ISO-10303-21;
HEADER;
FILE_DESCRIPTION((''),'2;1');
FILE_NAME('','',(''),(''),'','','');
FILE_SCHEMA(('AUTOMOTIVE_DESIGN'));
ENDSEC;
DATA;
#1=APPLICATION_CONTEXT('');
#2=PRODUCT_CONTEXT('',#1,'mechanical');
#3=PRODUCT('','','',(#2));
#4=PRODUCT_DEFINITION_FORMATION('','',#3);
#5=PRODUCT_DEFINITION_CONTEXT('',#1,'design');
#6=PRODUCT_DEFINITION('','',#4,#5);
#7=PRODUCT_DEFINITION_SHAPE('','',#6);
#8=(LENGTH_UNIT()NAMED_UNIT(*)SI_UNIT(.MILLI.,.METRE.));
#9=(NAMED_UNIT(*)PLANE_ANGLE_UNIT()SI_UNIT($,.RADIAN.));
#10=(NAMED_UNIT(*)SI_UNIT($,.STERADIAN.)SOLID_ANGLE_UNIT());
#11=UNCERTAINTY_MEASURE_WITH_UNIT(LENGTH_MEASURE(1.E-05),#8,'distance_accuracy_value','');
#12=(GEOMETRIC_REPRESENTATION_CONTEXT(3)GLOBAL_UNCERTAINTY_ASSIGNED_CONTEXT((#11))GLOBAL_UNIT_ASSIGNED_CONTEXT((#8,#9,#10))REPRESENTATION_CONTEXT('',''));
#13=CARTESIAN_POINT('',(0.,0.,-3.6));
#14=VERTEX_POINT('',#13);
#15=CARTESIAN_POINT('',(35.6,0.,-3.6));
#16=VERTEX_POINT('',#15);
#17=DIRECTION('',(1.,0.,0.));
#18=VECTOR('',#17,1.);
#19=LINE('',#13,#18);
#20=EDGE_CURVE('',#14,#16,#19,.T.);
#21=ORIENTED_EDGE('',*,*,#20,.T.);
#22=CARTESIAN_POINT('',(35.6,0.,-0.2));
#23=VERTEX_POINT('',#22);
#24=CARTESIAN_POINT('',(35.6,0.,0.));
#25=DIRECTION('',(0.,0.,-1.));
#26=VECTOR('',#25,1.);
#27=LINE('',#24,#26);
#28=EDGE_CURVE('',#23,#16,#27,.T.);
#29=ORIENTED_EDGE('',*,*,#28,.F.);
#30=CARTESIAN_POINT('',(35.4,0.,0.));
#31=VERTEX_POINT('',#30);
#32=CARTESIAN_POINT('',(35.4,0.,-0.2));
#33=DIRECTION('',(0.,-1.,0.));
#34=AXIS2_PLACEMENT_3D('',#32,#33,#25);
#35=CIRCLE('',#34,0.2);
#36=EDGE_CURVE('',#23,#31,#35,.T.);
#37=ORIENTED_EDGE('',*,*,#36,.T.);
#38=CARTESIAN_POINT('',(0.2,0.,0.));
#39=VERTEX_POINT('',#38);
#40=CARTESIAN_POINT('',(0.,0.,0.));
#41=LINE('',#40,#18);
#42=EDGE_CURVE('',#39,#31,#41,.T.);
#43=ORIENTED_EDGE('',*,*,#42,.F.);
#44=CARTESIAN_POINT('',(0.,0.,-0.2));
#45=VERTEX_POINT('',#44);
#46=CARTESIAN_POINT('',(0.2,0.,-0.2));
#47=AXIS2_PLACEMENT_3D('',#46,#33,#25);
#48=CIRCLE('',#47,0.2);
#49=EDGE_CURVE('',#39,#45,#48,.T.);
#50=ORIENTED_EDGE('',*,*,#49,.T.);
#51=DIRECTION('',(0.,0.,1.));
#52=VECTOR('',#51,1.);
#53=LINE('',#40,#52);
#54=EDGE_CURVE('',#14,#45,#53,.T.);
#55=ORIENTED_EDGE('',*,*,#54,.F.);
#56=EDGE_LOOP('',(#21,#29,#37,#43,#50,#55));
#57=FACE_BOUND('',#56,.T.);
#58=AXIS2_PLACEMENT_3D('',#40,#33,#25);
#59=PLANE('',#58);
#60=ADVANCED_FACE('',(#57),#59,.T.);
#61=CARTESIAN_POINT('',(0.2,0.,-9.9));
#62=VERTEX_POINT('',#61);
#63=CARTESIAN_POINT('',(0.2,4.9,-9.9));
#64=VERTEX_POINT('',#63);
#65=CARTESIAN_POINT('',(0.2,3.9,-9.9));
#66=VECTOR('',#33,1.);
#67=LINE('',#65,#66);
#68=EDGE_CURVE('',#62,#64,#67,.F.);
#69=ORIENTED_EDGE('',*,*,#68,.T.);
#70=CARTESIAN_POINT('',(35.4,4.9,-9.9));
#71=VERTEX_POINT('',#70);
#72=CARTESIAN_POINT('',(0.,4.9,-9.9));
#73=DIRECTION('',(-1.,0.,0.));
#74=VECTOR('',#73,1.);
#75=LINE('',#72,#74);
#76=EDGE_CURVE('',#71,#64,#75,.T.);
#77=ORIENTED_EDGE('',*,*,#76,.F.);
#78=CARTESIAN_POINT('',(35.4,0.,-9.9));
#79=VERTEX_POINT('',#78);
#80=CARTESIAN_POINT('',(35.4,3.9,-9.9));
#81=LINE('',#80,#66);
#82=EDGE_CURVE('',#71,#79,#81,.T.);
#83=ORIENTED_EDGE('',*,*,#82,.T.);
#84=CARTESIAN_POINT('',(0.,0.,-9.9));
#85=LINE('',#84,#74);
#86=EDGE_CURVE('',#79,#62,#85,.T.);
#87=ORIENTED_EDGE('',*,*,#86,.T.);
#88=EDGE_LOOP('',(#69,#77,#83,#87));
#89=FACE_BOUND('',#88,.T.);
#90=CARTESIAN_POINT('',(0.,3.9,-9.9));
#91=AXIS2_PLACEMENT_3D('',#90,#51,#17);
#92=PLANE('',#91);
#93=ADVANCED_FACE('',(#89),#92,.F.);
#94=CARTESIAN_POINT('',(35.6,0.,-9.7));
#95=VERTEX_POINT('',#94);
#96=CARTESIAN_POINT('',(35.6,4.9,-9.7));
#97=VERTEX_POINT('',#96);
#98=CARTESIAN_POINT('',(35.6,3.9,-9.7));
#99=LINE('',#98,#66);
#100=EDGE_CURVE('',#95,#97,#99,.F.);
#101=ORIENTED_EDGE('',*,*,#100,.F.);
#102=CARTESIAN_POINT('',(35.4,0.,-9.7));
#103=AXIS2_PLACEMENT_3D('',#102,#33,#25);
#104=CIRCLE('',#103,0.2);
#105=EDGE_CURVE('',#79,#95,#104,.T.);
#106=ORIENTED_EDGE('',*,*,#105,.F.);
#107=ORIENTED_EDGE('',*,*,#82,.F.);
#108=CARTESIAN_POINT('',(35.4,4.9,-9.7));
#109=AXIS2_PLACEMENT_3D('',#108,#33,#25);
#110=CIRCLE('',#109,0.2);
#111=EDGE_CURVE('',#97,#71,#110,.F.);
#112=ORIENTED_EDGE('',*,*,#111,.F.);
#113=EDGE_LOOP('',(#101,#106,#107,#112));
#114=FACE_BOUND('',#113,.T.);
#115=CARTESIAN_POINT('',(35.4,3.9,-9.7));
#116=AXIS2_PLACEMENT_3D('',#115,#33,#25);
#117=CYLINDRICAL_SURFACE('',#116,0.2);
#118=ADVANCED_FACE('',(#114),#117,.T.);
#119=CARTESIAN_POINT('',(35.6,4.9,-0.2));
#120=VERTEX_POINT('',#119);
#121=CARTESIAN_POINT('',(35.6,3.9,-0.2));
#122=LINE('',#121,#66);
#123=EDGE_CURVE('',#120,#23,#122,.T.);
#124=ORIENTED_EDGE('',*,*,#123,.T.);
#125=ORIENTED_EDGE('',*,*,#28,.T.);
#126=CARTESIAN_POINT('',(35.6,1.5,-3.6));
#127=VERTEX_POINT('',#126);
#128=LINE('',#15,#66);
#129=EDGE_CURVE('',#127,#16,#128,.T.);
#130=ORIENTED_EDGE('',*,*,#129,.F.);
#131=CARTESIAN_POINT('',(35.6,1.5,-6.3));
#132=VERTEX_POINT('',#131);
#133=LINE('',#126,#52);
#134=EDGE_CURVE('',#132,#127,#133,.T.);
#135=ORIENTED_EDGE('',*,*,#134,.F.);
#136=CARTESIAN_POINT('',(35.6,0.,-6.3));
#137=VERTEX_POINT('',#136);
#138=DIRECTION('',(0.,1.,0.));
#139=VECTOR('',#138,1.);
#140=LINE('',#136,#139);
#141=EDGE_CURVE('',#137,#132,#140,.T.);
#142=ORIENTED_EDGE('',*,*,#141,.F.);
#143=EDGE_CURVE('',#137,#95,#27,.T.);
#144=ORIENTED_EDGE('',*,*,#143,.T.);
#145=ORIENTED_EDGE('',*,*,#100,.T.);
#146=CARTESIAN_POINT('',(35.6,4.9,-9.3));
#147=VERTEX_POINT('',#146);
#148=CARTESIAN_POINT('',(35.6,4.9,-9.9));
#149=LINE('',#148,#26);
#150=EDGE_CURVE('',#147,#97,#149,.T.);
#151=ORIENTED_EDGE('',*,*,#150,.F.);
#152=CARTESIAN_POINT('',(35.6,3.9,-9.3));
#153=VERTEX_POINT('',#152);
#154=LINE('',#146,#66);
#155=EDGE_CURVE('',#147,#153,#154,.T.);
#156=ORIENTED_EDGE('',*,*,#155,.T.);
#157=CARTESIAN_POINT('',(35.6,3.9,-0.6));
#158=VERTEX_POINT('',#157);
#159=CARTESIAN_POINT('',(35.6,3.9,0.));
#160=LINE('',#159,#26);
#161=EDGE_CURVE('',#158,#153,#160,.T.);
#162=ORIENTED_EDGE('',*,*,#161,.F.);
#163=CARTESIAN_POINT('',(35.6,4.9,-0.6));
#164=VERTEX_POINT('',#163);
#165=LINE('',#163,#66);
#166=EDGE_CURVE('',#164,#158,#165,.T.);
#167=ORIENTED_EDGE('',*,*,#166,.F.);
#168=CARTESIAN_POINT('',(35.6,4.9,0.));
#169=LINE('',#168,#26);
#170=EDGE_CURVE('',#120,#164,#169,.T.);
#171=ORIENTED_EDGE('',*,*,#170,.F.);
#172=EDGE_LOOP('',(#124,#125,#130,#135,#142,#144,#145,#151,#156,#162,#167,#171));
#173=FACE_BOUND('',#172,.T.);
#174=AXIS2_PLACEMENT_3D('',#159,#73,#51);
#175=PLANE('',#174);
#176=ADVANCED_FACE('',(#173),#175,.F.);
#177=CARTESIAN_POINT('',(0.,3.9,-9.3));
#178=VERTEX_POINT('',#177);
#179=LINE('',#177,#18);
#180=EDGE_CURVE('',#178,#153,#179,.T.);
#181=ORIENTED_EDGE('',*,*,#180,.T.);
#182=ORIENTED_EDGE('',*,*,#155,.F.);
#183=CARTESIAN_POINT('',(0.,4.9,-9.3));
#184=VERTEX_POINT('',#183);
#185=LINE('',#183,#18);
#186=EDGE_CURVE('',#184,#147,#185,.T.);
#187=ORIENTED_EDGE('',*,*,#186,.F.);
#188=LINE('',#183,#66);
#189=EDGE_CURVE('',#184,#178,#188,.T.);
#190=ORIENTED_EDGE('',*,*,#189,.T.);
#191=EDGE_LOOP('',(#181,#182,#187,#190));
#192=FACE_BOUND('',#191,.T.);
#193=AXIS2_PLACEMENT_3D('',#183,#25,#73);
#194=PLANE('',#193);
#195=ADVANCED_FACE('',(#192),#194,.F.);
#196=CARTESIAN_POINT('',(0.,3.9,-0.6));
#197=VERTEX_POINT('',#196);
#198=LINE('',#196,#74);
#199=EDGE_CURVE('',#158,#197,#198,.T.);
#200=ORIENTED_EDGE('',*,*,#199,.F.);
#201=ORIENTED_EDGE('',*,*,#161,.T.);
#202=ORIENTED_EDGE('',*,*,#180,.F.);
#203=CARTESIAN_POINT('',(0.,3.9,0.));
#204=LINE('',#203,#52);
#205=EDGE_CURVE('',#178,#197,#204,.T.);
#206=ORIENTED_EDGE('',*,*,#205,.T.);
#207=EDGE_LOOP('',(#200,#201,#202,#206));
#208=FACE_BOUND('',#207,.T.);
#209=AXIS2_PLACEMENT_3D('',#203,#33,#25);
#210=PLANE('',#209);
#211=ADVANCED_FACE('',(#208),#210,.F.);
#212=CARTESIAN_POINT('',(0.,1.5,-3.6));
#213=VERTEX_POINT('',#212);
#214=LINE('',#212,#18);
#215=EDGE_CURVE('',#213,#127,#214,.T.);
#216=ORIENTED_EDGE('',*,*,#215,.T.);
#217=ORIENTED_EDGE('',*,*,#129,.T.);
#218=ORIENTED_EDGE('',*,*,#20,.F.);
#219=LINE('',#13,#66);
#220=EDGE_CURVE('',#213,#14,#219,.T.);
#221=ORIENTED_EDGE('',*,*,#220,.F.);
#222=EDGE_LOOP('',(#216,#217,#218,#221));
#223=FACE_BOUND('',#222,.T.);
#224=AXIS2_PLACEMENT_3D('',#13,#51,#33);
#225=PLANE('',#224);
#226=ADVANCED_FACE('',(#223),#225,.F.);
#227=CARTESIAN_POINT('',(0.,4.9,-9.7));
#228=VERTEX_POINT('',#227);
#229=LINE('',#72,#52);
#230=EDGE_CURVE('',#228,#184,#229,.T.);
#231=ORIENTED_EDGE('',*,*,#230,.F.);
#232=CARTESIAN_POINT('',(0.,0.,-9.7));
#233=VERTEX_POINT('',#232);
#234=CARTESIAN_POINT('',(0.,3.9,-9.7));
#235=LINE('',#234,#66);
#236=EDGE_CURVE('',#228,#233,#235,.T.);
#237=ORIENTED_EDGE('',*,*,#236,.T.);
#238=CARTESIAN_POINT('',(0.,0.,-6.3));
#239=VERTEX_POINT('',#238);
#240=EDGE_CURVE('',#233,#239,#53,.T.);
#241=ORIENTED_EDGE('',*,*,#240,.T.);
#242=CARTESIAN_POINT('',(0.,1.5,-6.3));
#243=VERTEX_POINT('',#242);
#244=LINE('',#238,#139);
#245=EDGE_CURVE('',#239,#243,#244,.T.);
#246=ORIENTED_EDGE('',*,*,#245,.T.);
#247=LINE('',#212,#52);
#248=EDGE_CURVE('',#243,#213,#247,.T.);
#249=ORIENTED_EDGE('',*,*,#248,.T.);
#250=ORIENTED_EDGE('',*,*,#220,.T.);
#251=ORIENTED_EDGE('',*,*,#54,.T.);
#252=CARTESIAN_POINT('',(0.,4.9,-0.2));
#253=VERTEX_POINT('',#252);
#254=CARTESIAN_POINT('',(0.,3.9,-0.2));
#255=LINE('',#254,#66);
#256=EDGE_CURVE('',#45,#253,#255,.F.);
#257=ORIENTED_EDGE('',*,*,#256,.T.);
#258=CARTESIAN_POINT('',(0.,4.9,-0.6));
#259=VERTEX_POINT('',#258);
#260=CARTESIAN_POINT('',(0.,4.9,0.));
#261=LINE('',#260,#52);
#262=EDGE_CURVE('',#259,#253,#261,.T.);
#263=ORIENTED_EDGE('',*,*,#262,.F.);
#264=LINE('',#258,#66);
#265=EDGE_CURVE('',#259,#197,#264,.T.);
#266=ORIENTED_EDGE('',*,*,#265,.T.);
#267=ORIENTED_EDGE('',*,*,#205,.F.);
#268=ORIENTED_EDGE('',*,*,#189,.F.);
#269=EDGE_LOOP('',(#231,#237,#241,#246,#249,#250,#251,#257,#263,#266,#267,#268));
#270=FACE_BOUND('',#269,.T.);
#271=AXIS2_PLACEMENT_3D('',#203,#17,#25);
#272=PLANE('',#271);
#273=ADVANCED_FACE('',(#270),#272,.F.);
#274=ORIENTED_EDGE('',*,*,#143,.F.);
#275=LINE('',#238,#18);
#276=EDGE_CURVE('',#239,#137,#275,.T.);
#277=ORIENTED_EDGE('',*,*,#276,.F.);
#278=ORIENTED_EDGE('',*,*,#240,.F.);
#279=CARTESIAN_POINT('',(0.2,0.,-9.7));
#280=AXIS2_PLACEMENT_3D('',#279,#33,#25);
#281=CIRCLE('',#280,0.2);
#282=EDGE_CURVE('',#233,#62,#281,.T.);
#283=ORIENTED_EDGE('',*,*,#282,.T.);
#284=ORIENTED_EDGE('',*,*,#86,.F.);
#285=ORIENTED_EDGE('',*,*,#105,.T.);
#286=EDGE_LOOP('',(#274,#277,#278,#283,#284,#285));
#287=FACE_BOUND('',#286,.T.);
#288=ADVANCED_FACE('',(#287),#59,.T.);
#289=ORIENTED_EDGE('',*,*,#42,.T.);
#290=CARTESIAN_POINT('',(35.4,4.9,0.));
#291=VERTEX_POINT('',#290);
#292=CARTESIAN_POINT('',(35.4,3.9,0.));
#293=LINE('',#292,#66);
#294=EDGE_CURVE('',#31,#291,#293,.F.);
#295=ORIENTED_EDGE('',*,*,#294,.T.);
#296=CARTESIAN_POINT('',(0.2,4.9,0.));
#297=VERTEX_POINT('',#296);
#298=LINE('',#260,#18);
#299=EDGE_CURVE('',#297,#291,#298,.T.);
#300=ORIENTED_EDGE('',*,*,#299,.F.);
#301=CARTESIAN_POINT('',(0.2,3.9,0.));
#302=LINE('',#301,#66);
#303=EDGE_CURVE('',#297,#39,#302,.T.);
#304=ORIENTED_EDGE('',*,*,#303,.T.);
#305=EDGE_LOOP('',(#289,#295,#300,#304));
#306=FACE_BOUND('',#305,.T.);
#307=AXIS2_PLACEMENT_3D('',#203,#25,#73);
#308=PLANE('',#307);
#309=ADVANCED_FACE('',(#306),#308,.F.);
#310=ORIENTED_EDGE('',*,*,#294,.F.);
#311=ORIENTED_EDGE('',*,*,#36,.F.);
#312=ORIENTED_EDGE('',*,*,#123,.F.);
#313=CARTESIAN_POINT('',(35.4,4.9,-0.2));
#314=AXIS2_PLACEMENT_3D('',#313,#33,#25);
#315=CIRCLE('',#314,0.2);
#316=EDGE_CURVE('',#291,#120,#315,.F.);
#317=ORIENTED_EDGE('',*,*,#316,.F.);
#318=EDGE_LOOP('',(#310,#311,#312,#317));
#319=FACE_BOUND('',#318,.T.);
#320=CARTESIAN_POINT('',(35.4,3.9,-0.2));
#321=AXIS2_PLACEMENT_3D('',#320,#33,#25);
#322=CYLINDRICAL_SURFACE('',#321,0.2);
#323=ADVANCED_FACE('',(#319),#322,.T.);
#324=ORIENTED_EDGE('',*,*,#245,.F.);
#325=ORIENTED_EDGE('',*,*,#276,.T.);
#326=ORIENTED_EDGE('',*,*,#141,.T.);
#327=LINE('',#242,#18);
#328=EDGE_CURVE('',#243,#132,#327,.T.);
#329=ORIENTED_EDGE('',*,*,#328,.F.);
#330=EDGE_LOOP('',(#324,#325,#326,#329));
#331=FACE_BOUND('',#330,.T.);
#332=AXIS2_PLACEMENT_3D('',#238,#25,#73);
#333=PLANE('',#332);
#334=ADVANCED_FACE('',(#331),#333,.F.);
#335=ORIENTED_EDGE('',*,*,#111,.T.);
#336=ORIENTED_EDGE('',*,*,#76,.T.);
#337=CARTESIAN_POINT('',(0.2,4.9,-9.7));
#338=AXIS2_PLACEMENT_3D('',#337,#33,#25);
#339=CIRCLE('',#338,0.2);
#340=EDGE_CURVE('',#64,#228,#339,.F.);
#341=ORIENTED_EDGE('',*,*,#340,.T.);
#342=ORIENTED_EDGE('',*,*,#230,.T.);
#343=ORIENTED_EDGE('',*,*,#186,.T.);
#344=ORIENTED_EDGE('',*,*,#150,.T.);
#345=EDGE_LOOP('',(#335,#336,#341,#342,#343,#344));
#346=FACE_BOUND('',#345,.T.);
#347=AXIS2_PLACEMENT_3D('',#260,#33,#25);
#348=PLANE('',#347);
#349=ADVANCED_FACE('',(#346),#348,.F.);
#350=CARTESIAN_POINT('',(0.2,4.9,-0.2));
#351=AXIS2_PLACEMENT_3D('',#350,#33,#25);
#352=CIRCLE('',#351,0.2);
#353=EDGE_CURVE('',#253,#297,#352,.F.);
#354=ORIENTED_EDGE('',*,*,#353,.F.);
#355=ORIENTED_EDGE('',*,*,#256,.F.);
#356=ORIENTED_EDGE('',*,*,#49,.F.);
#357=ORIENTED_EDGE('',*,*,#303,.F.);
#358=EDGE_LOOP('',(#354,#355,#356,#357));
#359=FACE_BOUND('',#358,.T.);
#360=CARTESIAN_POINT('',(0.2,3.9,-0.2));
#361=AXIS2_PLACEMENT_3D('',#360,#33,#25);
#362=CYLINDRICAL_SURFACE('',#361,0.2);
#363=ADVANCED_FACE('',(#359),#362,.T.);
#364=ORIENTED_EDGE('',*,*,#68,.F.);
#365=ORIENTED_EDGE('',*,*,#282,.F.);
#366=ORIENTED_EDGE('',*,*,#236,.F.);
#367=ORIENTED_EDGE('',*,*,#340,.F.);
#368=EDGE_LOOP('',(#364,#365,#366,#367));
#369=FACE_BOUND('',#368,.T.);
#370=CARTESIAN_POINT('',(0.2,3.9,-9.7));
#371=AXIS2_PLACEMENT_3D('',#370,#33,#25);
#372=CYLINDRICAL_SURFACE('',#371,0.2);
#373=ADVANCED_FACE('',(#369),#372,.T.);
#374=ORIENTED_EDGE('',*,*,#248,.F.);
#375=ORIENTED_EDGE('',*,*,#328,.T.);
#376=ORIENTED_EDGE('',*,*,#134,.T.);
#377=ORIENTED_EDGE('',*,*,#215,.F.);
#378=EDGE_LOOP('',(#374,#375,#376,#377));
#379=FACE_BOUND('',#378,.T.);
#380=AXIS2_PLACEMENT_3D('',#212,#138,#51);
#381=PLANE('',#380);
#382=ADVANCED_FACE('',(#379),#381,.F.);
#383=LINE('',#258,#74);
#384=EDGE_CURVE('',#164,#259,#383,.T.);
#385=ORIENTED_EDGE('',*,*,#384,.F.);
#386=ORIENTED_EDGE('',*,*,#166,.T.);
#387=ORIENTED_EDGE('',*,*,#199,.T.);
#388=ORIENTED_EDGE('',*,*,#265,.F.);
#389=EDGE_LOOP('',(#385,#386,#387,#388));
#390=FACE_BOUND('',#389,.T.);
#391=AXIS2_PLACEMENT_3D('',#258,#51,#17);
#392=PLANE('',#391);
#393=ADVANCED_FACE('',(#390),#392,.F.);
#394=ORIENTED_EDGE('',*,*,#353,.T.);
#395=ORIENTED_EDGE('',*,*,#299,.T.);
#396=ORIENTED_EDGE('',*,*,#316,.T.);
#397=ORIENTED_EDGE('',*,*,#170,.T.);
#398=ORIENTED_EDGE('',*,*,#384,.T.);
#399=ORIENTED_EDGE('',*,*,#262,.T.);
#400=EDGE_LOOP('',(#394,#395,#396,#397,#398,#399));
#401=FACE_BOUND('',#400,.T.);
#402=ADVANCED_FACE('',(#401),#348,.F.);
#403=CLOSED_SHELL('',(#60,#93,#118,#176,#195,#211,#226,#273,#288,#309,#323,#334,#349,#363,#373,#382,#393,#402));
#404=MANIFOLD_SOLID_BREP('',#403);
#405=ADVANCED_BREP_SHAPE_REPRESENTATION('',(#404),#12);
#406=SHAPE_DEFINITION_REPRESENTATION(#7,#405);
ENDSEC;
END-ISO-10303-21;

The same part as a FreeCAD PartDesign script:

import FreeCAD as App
import Part
import Sketcher

V = App.Vector
Q = App.Units.Quantity


def edges_at(feature, points):
    """Names of the edges that pass closest to the given points."""
    edges = feature.Shape.Edges
    near = lambda p: min(range(len(edges)), key=lambda i: edges[i].distToShape(Part.Vertex(*p))[0])
    return sorted({f"Edge{near(p) + 1}" for p in points})


def add_polygon(sketch, points):
    """Adds a closed chain of lines whose ends are joined by coincident constraints."""
    first, n = sketch.GeometryCount, len(points)
    for a, b in zip(points, points[1:] + points[:1]):
        sketch.addGeometry(Part.LineSegment(App.Vector(*a, 0), App.Vector(*b, 0)), False)
    for i in range(n):
        sketch.addConstraint(Sketcher.Constraint("Coincident", first + i, 2, first + (i + 1) % n, 1))

doc = App.newDocument("Part")
body = doc.addObject("PartDesign::Body", "Body")

sketch1 = body.newObject("Sketcher::SketchObject", "Sketch")
sketch1.AttachmentSupport = (doc.getObject("XZ_Plane"), [""])
sketch1.MapMode = "FlatFace"
add_polygon(sketch1, [(0, -10), (0, 0), (36, 0), (36, -10)])
sketch1.addConstraint([
    Sketcher.Constraint("Vertical", 0),
    Sketcher.Constraint("Horizontal", 1),
    Sketcher.Constraint("Vertical", 2),
    Sketcher.Constraint("Horizontal", 3),
    Sketcher.Constraint("Coincident", 0, 2, -1, 1),
    Sketcher.Constraint("DistanceX", 1, 1, 1, 2, Q("35.6 mm")),
    Sketcher.Constraint("DistanceY", 0, 1, 0, 2, Q("9.9 mm")),
])
pad1 = body.newObject("PartDesign::Pad", "Pad")
pad1.Profile = sketch1
pad1.Length = 3.9
pad1.Reversed = True

sketch2 = body.newObject("Sketcher::SketchObject", "Sketch001")
sketch2.AttachmentSupport = (doc.getObject("YZ_Plane"), [""])
sketch2.MapMode = "FlatFace"
sketch2.AttachmentOffset = App.Placement(V(0, 0, 35.6), App.Rotation())
add_polygon(sketch2, [(1.5, -3.6), (0, -3.6), (0, -6.3), (1.5, -6.3)])
sketch2.addConstraint([
    Sketcher.Constraint("Horizontal", 0),
    Sketcher.Constraint("Vertical", 1),
    Sketcher.Constraint("Horizontal", 2),
    Sketcher.Constraint("Vertical", 3),
    Sketcher.Constraint("PointOnObject", 0, 2, -2),
    Sketcher.Constraint("DistanceX", 0, 2, 0, 1, Q("1.5 mm")),
    Sketcher.Constraint("DistanceY", 1, 2, 1, 1, Q("2.7 mm")),
    Sketcher.Constraint("DistanceY", 0, 2, -1, 1, Q("3.6 mm")),
])
pocket1 = body.newObject("PartDesign::Pocket", "Pocket")
pocket1.Profile = sketch2
pocket1.Type = "ThroughAll"

sketch3 = body.newObject("Sketcher::SketchObject", "Sketch002")
sketch3.AttachmentSupport = (doc.getObject("XZ_Plane"), [""])
sketch3.MapMode = "FlatFace"
sketch3.AttachmentOffset = App.Placement(V(0, 0, -3.9), App.Rotation())
add_polygon(sketch3, [(0, -0.6), (0, 0), (35.6, 0), (35.6, -0.6)])
add_polygon(sketch3, [(0, -9.9), (0, -9.3), (35.6, -9.3), (35.6, -9.9)])
sketch3.addConstraint([
    Sketcher.Constraint("Vertical", 0),
    Sketcher.Constraint("Horizontal", 1),
    Sketcher.Constraint("Vertical", 2),
    Sketcher.Constraint("Horizontal", 3),
    Sketcher.Constraint("Vertical", 4),
    Sketcher.Constraint("Horizontal", 5),
    Sketcher.Constraint("Vertical", 6),
    Sketcher.Constraint("Horizontal", 7),
    Sketcher.Constraint("Coincident", 0, 2, -1, 1),
    Sketcher.Constraint("PointOnObject", 4, 2, -2),
    Sketcher.Constraint("Vertical", 2, 2, 5, 2),
    Sketcher.Constraint("Equal", 2, 4),
    Sketcher.Constraint("DistanceX", 1, 1, 1, 2, Q("35.6 mm")),
    Sketcher.Constraint("DistanceY", 0, 1, 0, 2, Q("0.6 mm")),
    Sketcher.Constraint("DistanceY", 4, 2, -1, 1, Q("9.3 mm")),
])
pad2 = body.newObject("PartDesign::Pad", "Pad001")
pad2.Profile = sketch3
pad2.Length = 1
pad2.Reversed = True
doc.recompute()

fillet = body.newObject("PartDesign::Fillet", "Fillet")
fillet.Base = (pad2, edges_at(pad2, [
    (0, 2.45, -9.9),
    (35.6, 2.45, -9.9),
    (35.6, 2.45, 0),
    (0, 2.45, 0),
]))
fillet.Radius = 0.2

doc.recompute()
